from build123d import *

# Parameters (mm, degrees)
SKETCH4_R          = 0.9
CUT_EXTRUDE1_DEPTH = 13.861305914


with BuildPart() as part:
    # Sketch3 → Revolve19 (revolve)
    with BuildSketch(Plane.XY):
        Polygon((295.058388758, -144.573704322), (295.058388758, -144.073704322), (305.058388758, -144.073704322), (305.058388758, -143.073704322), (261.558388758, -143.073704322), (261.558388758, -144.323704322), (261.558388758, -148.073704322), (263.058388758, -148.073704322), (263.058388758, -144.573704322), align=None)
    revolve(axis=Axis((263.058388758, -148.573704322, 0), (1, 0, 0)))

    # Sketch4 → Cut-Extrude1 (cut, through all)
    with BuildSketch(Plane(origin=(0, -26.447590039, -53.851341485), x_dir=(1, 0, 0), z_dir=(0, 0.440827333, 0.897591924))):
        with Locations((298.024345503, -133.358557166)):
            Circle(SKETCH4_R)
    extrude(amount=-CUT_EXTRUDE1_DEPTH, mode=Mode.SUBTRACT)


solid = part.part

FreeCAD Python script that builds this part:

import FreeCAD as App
import Part
import Sketcher
from FreeCAD import Vector
Q = App.Units.Quantity

doc = App.newDocument("Part")
body = doc.addObject("PartDesign::Body", "Body")

# Sketch on XY plane
sketch1 = body.newObject("Sketcher::SketchObject", "Sketch")
sketch1.AttachmentSupport = (doc.getObject("XY_Plane"), [""])
sketch1.MapMode = "FlatFace"
sketch1.addGeometry(Part.LineSegment(Vector(295.058389, -144.573704, 0), Vector(295.058389, -144.073704, 0)), False)
sketch1.addGeometry(Part.LineSegment(Vector(295.058389, -144.073704, 0), Vector(305.058389, -144.073704, 0)), False)
sketch1.addGeometry(Part.LineSegment(Vector(305.058389, -144.073704, 0), Vector(305.058389, -143.073704, 0)), False)
sketch1.addGeometry(Part.LineSegment(Vector(305.058389, -143.073704, 0), Vector(261.558389, -143.073704, 0)), False)
sketch1.addGeometry(Part.LineSegment(Vector(261.558389, -143.073704, 0), Vector(261.558389, -148.073704, 0)), False)
sketch1.addGeometry(Part.LineSegment(Vector(261.558389, -148.073704, 0), Vector(263.058389, -148.073704, 0)), False)
sketch1.addGeometry(Part.LineSegment(Vector(263.058389, -148.073704, 0), Vector(263.058389, -144.573704, 0)), False)
sketch1.addGeometry(Part.LineSegment(Vector(263.058389, -144.573704, 0), Vector(295.058389, -144.573704, 0)), False)
sketch1.addGeometry(Part.LineSegment(Vector(261.558389, -148.573704, 0), Vector(305.058389, -148.573704, 0)), True)  # axis
sketch1.addConstraint(Sketcher.Constraint("Coincident", 0, 2, 1, 1))
sketch1.addConstraint(Sketcher.Constraint("Coincident", 1, 2, 2, 1))
sketch1.addConstraint(Sketcher.Constraint("Coincident", 2, 2, 3, 1))
sketch1.addConstraint(Sketcher.Constraint("Coincident", 3, 2, 4, 1))
sketch1.addConstraint(Sketcher.Constraint("Coincident", 4, 2, 5, 1))
sketch1.addConstraint(Sketcher.Constraint("Coincident", 5, 2, 6, 1))
sketch1.addConstraint(Sketcher.Constraint("Coincident", 6, 2, 7, 1))
sketch1.addConstraint(Sketcher.Constraint("Coincident", 7, 2, 0, 1))
sketch1.addConstraint(Sketcher.Constraint("Vertical", 0))
sketch1.addConstraint(Sketcher.Constraint("Horizontal", 1))
sketch1.addConstraint(Sketcher.Constraint("Vertical", 2))
sketch1.addConstraint(Sketcher.Constraint("Horizontal", 3))
sketch1.addConstraint(Sketcher.Constraint("Vertical", 4))
sketch1.addConstraint(Sketcher.Constraint("Horizontal", 5))
sketch1.addConstraint(Sketcher.Constraint("Vertical", 6))
sketch1.addConstraint(Sketcher.Constraint("Horizontal", 7))
sketch1.addConstraint(Sketcher.Constraint("Horizontal", 8))
sketch1.addConstraint(Sketcher.Constraint("Vertical", 4, 2, 8, 1))
sketch1.addConstraint(Sketcher.Constraint("Vertical", 2, 2, 8, 2))
sketch1.addConstraint(Sketcher.Constraint("DistanceX", 1, 1, 1, 2, Q("10 mm")))
sketch1.addConstraint(Sketcher.Constraint("DistanceX", 7, 1, 7, 2, Q("32 mm")))
sketch1.addConstraint(Sketcher.Constraint("DistanceY", 2, 1, 2, 2, Q("1 mm")))
sketch1.addConstraint(Sketcher.Constraint("DistanceY", 4, 2, 4, 1, Q("5 mm")))
sketch1.addConstraint(Sketcher.Constraint("DistanceX", 3, 2, 3, 1, Q("43.5 mm")))
sketch1.addConstraint(Sketcher.Constraint("DistanceY", 0, 1, 0, 2, Q("0.5 mm")))
sketch1.addConstraint(Sketcher.Constraint("DistanceY", 8, 1, 6, 2, Q("4 mm")))
sketch1.addConstraint(Sketcher.Constraint("DistanceX", -1, 1, 0, 2, Q("295.058389 mm")))
sketch1.addConstraint(Sketcher.Constraint("DistanceY", 0, 2, -1, 1, Q("144.073704 mm")))
revolution = body.newObject("PartDesign::Revolution", "Revolution")
revolution.Profile = sketch1
revolution.ReferenceAxis = (sketch1, ["Axis0"])
revolution.Angle = 360

# Sketch on an angled plane
sketch2 = body.newObject("Sketcher::SketchObject", "Sketch001")
sketch2.Placement = App.Placement(Vector(0, -26.44759, -53.851341), App.Rotation(Vector(1, 0, 0), Vector(0, 0.897591924, -0.440827333), Vector(0, 0.440827333, 0.897591924), "ZXY"))
sketch2.addGeometry(Part.Circle(Vector(298.024346, -133.358557, 0), Vector(0, 0, 1), 0.9), False)
sketch2.addConstraint(Sketcher.Constraint("Diameter", 0, Q("1.8 mm")))
sketch2.addConstraint(Sketcher.Constraint("DistanceX", -1, 1, 0, 3, Q("298.024346 mm")))
sketch2.addConstraint(Sketcher.Constraint("DistanceY", 0, 3, -1, 1, Q("133.358557 mm")))
pocket1 = body.newObject("PartDesign::Pocket", "Pocket")
pocket1.Profile = sketch2
pocket1.Type = "ThroughAll"

doc.recompute()
